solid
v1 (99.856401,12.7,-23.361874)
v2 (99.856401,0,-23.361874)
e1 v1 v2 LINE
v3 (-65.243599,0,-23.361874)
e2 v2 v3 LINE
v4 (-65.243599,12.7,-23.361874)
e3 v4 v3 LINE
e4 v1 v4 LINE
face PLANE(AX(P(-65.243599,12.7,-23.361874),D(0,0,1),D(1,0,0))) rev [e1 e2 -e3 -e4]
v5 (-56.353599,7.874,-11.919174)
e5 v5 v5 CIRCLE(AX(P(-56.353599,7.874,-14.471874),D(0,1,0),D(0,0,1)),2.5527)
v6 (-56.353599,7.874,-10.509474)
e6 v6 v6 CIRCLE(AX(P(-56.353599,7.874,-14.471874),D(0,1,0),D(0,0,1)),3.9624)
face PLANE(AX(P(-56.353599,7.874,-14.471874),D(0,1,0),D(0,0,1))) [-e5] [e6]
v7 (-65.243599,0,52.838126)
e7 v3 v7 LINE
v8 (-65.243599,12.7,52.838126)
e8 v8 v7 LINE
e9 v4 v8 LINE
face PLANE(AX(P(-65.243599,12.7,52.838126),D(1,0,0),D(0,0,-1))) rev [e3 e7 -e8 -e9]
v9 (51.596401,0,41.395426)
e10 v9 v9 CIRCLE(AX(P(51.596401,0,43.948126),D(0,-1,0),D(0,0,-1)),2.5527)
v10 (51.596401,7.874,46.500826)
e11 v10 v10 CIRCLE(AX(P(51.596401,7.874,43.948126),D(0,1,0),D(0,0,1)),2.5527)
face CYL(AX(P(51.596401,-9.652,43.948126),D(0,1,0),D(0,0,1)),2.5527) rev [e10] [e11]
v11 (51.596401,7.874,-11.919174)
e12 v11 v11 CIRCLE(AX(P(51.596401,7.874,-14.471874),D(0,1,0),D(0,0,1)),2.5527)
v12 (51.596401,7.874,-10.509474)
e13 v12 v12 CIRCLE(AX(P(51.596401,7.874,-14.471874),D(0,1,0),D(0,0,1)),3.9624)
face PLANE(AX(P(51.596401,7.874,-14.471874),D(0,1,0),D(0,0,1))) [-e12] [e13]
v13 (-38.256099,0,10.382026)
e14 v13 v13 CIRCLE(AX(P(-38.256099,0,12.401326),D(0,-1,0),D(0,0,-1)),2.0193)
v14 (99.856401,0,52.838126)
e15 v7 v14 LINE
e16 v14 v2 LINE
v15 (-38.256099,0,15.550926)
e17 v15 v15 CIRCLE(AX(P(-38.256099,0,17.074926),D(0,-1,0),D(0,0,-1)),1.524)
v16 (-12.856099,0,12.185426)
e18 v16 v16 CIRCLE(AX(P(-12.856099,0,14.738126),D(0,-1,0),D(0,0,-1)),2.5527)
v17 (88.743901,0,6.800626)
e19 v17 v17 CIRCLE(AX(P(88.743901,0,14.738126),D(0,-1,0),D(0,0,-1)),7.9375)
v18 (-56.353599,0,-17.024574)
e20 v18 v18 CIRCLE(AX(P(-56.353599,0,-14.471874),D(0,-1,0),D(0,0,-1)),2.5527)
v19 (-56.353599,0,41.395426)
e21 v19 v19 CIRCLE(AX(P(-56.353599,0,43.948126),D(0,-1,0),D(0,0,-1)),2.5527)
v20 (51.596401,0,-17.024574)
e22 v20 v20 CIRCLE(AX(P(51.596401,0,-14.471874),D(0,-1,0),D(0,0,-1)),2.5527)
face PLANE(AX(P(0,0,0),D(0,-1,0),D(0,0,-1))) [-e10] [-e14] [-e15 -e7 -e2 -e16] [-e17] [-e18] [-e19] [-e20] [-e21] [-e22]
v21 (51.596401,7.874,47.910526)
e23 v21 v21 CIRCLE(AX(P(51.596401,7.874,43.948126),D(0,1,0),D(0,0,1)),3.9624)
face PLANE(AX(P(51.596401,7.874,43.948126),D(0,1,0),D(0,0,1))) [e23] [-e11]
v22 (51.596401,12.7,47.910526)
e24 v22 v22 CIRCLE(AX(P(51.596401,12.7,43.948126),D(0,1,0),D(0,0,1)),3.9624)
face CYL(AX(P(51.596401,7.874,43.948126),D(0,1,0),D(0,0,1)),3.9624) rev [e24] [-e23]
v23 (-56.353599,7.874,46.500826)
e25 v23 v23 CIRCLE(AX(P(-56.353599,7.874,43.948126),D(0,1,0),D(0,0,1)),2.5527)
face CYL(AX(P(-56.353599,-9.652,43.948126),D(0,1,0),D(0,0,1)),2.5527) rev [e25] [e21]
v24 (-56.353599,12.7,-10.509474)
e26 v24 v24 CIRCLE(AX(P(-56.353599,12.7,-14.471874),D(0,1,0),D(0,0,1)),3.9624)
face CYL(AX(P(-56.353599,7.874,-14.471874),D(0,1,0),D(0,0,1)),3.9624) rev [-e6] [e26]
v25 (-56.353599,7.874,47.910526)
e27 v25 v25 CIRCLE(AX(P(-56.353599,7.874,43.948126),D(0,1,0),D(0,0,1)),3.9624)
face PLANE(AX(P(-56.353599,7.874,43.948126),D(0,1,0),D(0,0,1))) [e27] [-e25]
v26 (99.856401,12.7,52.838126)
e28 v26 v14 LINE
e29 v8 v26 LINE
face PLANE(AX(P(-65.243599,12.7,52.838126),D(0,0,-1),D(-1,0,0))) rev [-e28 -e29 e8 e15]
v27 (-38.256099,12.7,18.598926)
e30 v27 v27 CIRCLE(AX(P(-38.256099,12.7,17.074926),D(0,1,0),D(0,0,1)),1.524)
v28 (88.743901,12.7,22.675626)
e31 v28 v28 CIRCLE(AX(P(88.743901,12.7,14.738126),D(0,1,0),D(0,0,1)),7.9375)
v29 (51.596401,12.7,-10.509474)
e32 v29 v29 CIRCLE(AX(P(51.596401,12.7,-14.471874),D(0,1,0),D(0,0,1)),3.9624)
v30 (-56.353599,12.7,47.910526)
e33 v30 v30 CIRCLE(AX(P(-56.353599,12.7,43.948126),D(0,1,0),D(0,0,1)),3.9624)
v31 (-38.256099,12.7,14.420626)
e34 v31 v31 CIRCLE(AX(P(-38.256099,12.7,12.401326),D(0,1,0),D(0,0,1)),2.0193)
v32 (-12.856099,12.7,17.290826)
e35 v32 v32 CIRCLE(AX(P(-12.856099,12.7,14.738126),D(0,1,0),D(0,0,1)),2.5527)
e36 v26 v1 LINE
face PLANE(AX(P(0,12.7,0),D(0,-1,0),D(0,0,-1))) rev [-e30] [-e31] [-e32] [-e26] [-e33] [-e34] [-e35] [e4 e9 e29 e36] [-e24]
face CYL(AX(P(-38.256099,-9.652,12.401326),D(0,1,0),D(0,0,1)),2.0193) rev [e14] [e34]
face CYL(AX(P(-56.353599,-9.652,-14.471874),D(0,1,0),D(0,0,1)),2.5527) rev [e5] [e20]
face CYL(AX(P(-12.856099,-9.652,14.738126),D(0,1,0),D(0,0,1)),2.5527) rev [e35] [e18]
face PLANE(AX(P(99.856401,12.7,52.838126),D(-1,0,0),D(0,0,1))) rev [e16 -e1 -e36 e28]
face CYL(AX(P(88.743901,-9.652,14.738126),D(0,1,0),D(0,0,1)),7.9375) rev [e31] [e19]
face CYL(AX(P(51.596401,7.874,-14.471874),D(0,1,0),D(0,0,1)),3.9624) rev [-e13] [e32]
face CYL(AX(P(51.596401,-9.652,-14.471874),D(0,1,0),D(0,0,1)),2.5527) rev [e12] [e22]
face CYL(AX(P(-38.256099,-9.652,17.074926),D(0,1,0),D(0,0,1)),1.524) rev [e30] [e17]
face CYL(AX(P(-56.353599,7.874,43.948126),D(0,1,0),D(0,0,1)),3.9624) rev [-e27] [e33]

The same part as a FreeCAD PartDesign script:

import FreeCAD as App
import Part
import Sketcher

V = App.Vector
Q = App.Units.Quantity

doc = App.newDocument("Part")
body = doc.addObject("PartDesign::Body", "Body")

sketch1 = body.newObject("Sketcher::SketchObject", "Sketch")
sketch1.AttachmentSupport = (doc.getObject("XZ_Plane"), [""])
sketch1.MapMode = "FlatFace"
sketch1.addGeometry([
    Part.LineSegment(V(-65.243599, -23.361874, 0), V(-65.243599, 52.838126, 0)),
    Part.LineSegment(V(-65.243599, 52.838126, 0), V(99.856401, 52.838126, 0)),
    Part.LineSegment(V(99.856401, 52.838126, 0), V(99.856401, -23.361874, 0)),
    Part.LineSegment(V(99.856401, -23.361874, 0), V(-65.243599, -23.361874, 0)),
], False)
sketch1.addConstraint([
    Sketcher.Constraint("Coincident", 0, 2, 1, 1),
    Sketcher.Constraint("Coincident", 1, 2, 2, 1),
    Sketcher.Constraint("Coincident", 2, 2, 3, 1),
    Sketcher.Constraint("Coincident", 3, 2, 0, 1),
    Sketcher.Constraint("Vertical", 0),
    Sketcher.Constraint("Horizontal", 1),
    Sketcher.Constraint("Vertical", 2),
    Sketcher.Constraint("Horizontal", 3),
    Sketcher.Constraint("DistanceY", 0, 1, 0, 2, Q("3 in")),
    Sketcher.Constraint("DistanceX", 1, 1, 1, 2, Q("6.5 in")),
    Sketcher.Constraint("DistanceX", 0, 2, -1, 1, Q("65.243599 mm")),
    Sketcher.Constraint("DistanceY", -1, 1, 0, 2, Q("52.838126 mm")),
])
pad1 = body.newObject("PartDesign::Pad", "Pad")
pad1.Profile = sketch1
pad1.Length = Q("0.5 in")
pad1.Reversed = True

sketch2 = body.newObject("Sketcher::SketchObject", "Sketch001")
sketch2.AttachmentSupport = (doc.getObject("XZ_Plane"), [""])
sketch2.MapMode = "FlatFace"
sketch2.AttachmentOffset = App.Placement(V(0, 0, -0.5 * 25.4), App.Rotation())
sketch2.addGeometry([
    Part.Circle(V(-56.353599, 43.948126, 0), V(0, 0, 1), 3.9624),
    Part.Circle(V(-56.353599, 43.948126, 0), V(0, 0, 1), 2.5527),
    Part.Circle(V(-56.353599, -14.471874, 0), V(0, 0, 1), 3.9624),
    Part.Circle(V(-56.353599, -14.471874, 0), V(0, 0, 1), 2.5527),
    Part.Circle(V(51.596401, -14.471874, 0), V(0, 0, 1), 3.9624),
    Part.Circle(V(51.596401, -14.471874, 0), V(0, 0, 1), 2.5527),
    Part.Circle(V(51.596401, 43.948126, 0), V(0, 0, 1), 3.9624),
    Part.Circle(V(51.596401, 43.948126, 0), V(0, 0, 1), 2.5527),
], False)
sketch2.addConstraint([
    Sketcher.Constraint("Coincident", 1, 3, 0, 3),
    Sketcher.Constraint("Coincident", 3, 3, 2, 3),
    Sketcher.Constraint("Coincident", 5, 3, 4, 3),
    Sketcher.Constraint("Coincident", 7, 3, 6, 3),
    Sketcher.Constraint("Equal", 0, 2),
    Sketcher.Constraint("Equal", 1, 3),
    Sketcher.Constraint("Equal", 2, 4),
    Sketcher.Constraint("Equal", 3, 5),
    Sketcher.Constraint("Equal", 4, 6),
    Sketcher.Constraint("Equal", 5, 7),
    Sketcher.Constraint("Horizontal", 3, 3, 4, 3),
    Sketcher.Constraint("Horizontal", 1, 3, 6, 3),
    Sketcher.Constraint("Vertical", 1, 3, 2, 3),
    Sketcher.Constraint("Vertical", 5, 3, 6, 3),
    Sketcher.Constraint("Diameter", 0, Q("0.312 in")),
    Sketcher.Constraint("Diameter", 1, Q("0.201 in")),
    Sketcher.Constraint("DistanceY", 2, 3, 0, 3, Q("2.3 in")),
    Sketcher.Constraint("DistanceX", 2, 3, 4, 3, Q("4.25 in")),
    Sketcher.Constraint("DistanceX", 0, 3, -1, 1, Q("56.353599 mm")),
    Sketcher.Constraint("DistanceY", -1, 1, 0, 3, Q("43.948126 mm")),
])
pocket1 = body.newObject("PartDesign::Pocket", "Pocket")
pocket1.Profile = sketch2
pocket1.Length = Q("0.19 in")
pocket1.Reversed = True

sketch3 = body.newObject("Sketcher::SketchObject", "Sketch002")
sketch3.AttachmentSupport = (doc.getObject("XZ_Plane"), [""])
sketch3.MapMode = "FlatFace"
sketch3.AttachmentOffset = App.Placement(V(0, 0, -0.5 * 25.4), App.Rotation())
sketch3.addGeometry([
    Part.Circle(V(-56.353599, 43.948126, 0), V(0, 0, 1), 2.5527),
    Part.Circle(V(-56.353599, -14.471874, 0), V(0, 0, 1), 2.5527),
    Part.Circle(V(51.596401, -14.471874, 0), V(0, 0, 1), 2.5527),
    Part.Circle(V(51.596401, 43.948126, 0), V(0, 0, 1), 2.5527),
], False)
sketch3.addConstraint([
    Sketcher.Constraint("Equal", 0, 1),
    Sketcher.Constraint("Equal", 1, 2),
    Sketcher.Constraint("Equal", 2, 3),
    Sketcher.Constraint("Horizontal", 1, 3, 2, 3),
    Sketcher.Constraint("Horizontal", 0, 3, 3, 3),
    Sketcher.Constraint("Vertical", 0, 3, 1, 3),
    Sketcher.Constraint("Vertical", 2, 3, 3, 3),
    Sketcher.Constraint("Diameter", 0, Q("0.201 in")),
    Sketcher.Constraint("DistanceY", 1, 3, 0, 3, Q("2.3 in")),
    Sketcher.Constraint("DistanceX", 1, 3, 2, 3, Q("4.25 in")),
    Sketcher.Constraint("DistanceX", 0, 3, -1, 1, Q("56.353599 mm")),
    Sketcher.Constraint("DistanceY", -1, 1, 0, 3, Q("43.948126 mm")),
])
pocket2 = body.newObject("PartDesign::Pocket", "Pocket001")
pocket2.Profile = sketch3
pocket2.Length = Q("0.88 in")
pocket2.Reversed = True

sketch4 = body.newObject("Sketcher::SketchObject", "Sketch003")
sketch4.AttachmentSupport = (doc.getObject("XZ_Plane"), [""])
sketch4.MapMode = "FlatFace"
sketch4.AttachmentOffset = App.Placement(V(0, 0, -0.5 * 25.4), App.Rotation())
sketch4.addGeometry([
    Part.Circle(V(88.743901, 14.738126, 0), V(0, 0, 1), 7.9375),
    Part.Circle(V(-12.856099, 14.738126, 0), V(0, 0, 1), 2.5527),
    Part.Circle(V(-38.256099, 12.401326, 0), V(0, 0, 1), 2.0193),
    Part.Circle(V(-38.256099, 17.074926, 0), V(0, 0, 1), 1.524),
], False)
sketch4.addConstraint([
    Sketcher.Constraint("Horizontal", 0, 3, 1, 3),
    Sketcher.Constraint("Vertical", 2, 3, 3, 3),
    Sketcher.Constraint("Diameter", 3, Q("0.12 in")),
    Sketcher.Constraint("Diameter", 0, Q("0.625 in")),
    Sketcher.Constraint("Diameter", 1, Q("0.201 in")),
    Sketcher.Constraint("Diameter", 2, Q("0.159 in")),
    Sketcher.Constraint("DistanceX", 1, 3, 0, 3, Q("4 in")),
    Sketcher.Constraint("DistanceX", 2, 3, 1, 3, Q("1 in")),
    Sketcher.Constraint("DistanceY", 2, 3, 1, 3, Q("0.092 in")),
    Sketcher.Constraint("DistanceY", 2, 3, 3, 3, Q("0.184 in")),
    Sketcher.Constraint("DistanceX", -1, 1, 0, 3, Q("88.743901 mm")),
    Sketcher.Constraint("DistanceY", -1, 1, 0, 3, Q("14.738126 mm")),
])
pocket3 = body.newObject("PartDesign::Pocket", "Pocket002")
pocket3.Profile = sketch4
pocket3.Length = Q("0.88 in")
pocket3.Reversed = True

doc.recompute()
